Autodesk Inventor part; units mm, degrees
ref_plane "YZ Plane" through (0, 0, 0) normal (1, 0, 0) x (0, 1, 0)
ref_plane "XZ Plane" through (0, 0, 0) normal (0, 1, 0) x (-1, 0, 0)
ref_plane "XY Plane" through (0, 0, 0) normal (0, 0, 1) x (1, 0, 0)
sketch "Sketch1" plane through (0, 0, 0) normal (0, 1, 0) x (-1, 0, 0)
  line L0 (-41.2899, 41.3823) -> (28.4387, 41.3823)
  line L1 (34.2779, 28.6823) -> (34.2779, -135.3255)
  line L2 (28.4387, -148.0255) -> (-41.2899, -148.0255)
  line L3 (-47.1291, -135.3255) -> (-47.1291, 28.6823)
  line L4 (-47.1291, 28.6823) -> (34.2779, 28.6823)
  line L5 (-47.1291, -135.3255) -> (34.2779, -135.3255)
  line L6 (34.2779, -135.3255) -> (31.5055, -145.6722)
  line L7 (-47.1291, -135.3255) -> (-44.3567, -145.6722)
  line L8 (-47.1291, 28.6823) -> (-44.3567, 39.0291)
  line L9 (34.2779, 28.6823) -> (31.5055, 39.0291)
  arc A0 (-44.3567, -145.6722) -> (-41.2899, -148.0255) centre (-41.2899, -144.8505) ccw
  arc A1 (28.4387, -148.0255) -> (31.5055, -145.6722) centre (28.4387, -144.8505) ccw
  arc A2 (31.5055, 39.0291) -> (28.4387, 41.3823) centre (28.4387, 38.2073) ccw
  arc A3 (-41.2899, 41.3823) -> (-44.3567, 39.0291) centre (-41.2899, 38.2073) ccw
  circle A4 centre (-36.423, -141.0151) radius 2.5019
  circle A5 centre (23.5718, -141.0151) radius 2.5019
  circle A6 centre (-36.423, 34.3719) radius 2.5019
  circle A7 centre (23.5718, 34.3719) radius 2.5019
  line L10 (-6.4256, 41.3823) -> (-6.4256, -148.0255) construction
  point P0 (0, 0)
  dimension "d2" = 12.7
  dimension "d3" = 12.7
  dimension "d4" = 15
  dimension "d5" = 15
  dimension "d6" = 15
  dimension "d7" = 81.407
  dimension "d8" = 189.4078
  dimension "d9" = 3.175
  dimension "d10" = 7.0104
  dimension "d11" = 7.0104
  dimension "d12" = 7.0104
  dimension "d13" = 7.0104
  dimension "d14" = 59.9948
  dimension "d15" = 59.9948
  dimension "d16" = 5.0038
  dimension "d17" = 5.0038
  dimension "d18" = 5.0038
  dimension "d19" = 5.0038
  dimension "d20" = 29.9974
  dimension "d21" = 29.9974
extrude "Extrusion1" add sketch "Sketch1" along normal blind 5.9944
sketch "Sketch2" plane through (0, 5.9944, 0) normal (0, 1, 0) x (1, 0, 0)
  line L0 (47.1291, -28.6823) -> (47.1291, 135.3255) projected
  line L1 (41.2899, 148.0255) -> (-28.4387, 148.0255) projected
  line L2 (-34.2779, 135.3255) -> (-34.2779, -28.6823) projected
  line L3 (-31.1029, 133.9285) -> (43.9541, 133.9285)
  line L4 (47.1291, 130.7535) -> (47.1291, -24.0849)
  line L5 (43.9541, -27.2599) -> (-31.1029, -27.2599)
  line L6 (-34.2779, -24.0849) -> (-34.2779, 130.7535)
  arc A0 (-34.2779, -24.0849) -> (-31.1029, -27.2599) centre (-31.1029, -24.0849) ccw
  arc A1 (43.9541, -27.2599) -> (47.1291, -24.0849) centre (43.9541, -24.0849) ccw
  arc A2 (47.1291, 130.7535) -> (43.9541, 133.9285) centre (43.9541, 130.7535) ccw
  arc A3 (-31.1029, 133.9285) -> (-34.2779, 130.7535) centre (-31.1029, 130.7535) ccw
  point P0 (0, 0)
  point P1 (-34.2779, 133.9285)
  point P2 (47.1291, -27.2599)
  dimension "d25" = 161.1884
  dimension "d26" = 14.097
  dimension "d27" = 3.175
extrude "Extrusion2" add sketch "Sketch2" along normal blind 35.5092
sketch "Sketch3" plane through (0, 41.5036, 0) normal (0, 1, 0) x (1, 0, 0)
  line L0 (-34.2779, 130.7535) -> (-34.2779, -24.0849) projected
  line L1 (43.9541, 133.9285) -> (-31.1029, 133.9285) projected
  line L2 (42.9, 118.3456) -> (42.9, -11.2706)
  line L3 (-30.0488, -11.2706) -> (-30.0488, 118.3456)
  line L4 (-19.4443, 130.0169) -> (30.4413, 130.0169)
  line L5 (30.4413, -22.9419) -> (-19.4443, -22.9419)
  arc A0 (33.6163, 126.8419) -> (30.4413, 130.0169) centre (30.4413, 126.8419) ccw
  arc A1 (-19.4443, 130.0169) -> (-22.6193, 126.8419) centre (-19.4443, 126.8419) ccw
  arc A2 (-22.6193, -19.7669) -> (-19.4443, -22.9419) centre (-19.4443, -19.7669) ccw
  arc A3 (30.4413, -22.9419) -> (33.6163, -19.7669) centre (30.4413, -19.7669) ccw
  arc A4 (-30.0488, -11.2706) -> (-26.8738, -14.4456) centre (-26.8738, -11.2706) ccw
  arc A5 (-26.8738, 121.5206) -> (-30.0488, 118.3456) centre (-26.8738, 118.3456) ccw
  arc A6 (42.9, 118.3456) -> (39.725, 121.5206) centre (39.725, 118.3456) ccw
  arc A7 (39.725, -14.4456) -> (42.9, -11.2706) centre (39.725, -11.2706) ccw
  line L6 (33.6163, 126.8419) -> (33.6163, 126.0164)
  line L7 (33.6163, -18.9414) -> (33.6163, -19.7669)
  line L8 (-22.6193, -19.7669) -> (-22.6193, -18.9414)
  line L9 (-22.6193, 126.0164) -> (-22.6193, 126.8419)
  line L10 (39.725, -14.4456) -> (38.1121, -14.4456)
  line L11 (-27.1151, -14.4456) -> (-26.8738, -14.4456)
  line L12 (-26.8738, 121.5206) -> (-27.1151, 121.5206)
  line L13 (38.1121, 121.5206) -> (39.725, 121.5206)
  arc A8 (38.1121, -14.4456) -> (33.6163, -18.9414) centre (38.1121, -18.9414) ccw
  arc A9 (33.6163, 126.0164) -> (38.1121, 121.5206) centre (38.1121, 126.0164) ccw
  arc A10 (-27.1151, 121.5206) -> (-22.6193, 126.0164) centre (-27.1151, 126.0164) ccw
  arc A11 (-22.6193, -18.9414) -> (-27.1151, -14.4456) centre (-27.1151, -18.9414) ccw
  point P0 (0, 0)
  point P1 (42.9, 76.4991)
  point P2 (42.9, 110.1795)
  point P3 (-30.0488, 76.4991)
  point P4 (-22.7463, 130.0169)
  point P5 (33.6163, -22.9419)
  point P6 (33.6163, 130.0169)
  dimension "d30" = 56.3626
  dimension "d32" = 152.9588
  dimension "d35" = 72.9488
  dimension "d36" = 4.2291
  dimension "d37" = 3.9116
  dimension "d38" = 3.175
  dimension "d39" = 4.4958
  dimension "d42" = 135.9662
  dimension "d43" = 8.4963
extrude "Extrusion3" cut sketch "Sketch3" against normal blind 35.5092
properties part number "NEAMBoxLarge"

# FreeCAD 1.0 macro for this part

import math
import FreeCAD as App
import Part
import Sketcher
Q = App.Units.Quantity

doc = App.newDocument("Part")
body = doc.addObject("PartDesign::Body", "Body")

# Sketch on XZ plane
sketch1 = body.newObject("Sketcher::SketchObject", "Sketch")
sketch1.AttachmentSupport = (doc.getObject("XZ_Plane"), [""])
sketch1.MapMode = "FlatFace"
sketch1.addGeometry([
    Part.LineSegment(App.Vector(-28.4387, 41.3823, 0), App.Vector(41.2899, 41.3823, 0)),  # 0
    Part.ArcOfCircle(Part.Circle(App.Vector(41.2899, 38.2073, 0), App.Vector(0, 0, 1), 3.175), math.radians(15.000931), math.radians(90)),  # 1
    Part.LineSegment(App.Vector(44.3567, 39.0291, 0), App.Vector(47.1291, 28.6823, 0)),  # 2
    Part.LineSegment(App.Vector(47.1291, 28.6823, 0), App.Vector(47.1291, -135.3255, 0)),  # 3
    Part.LineSegment(App.Vector(47.1291, -135.3255, 0), App.Vector(44.3567, -145.6722, 0)),  # 4
    Part.ArcOfCircle(Part.Circle(App.Vector(41.2899, -144.8505, 0), App.Vector(0, 0, 1), 3.174973), math.radians(-90), math.radians(-14.999188)),  # 5
    Part.LineSegment(App.Vector(41.2899, -148.0255, 0), App.Vector(-28.4387, -148.0255, 0)),  # 6
    Part.ArcOfCircle(Part.Circle(App.Vector(-28.4387, -144.8505, 0), App.Vector(0, 0, 1), 3.175), math.radians(-165.000812), math.radians(-90)),  # 7
    Part.LineSegment(App.Vector(-31.5055, -145.6722, 0), App.Vector(-34.2779, -135.3255, 0)),  # 8
    Part.LineSegment(App.Vector(-34.2779, -135.3255, 0), App.Vector(-34.2779, 28.6823, 0)),  # 9
    Part.LineSegment(App.Vector(-34.2779, 28.6823, 0), App.Vector(-31.5055, 39.0291, 0)),  # 10
    Part.ArcOfCircle(Part.Circle(App.Vector(-28.4387, 38.2073, 0), App.Vector(0, 0, 1), 3.174999), math.radians(90), math.radians(164.999069)),  # 11
    Part.Circle(App.Vector(36.423, 34.3719, 0), App.Vector(0, 0, 1), 2.5019),  # 12
    Part.Circle(App.Vector(-23.5718, 34.3719, 0), App.Vector(0, 0, 1), 2.5019),  # 13
    Part.Circle(App.Vector(-23.5718, -141.0151, 0), App.Vector(0, 0, 1), 2.5019),  # 14
    Part.Circle(App.Vector(36.423, -141.0151, 0), App.Vector(0, 0, 1), 2.5019),  # 15
], False)
sketch1.addConstraint([
    Sketcher.Constraint("Tangent", 0, 2, 1, 2),
    Sketcher.Constraint("Tangent", 1, 1, 2, 1),
    Sketcher.Constraint("Coincident", 2, 2, 3, 1),
    Sketcher.Constraint("Coincident", 3, 2, 4, 1),
    Sketcher.Constraint("Tangent", 4, 2, 5, 2),
    Sketcher.Constraint("Tangent", 5, 1, 6, 1),
    Sketcher.Constraint("Tangent", 6, 2, 7, 2),
    Sketcher.Constraint("Tangent", 7, 1, 8, 1),
    Sketcher.Constraint("Coincident", 8, 2, 9, 1),
    Sketcher.Constraint("Coincident", 9, 2, 10, 1),
    Sketcher.Constraint("Tangent", 10, 2, 11, 2),
    Sketcher.Constraint("Tangent", 11, 1, 0, 1),
    Sketcher.Constraint("Horizontal", 0),
    Sketcher.Constraint("Vertical", 3),
    Sketcher.Constraint("Horizontal", 6),
    Sketcher.Constraint("Vertical", 9),
    Sketcher.Constraint("Equal", 1, 5),
    Sketcher.Constraint("Equal", 5, 7),
    Sketcher.Constraint("Equal", 7, 11),
    Sketcher.Constraint("Equal", 12, 13),
    Sketcher.Constraint("Equal", 13, 14),
    Sketcher.Constraint("Equal", 14, 15),
    Sketcher.Constraint("Parallel", 2, 8),
    Sketcher.Constraint("Parallel", 4, 10),
    Sketcher.Constraint("Horizontal", 12, 3, 13, 3),
    Sketcher.Constraint("Horizontal", 14, 3, 15, 3),
    Sketcher.Constraint("Horizontal", 4, 2, 7, 1),
    Sketcher.Constraint("Horizontal", 3, 2, 8, 2),
    Sketcher.Constraint("Horizontal", 2, 2, 9, 2),
    Sketcher.Constraint("Vertical", 1, 3, 5, 3),
    Sketcher.Constraint("Vertical", 13, 3, 14, 3),
    Sketcher.Constraint("Vertical", 12, 3, 15, 3),
    Sketcher.Constraint("Diameter", 12, Q("0.197 in")),
    Sketcher.Constraint("Radius", 1, Q("0.125 in")),
    Sketcher.Constraint("DistanceY", 2, 2, 0, 2, Q("0.5 in")),
    Sketcher.Constraint("Angle", 2, Q("-75 deg")),
    Sketcher.Constraint("DistanceX", 13, 3, 12, 3, Q("2.362 in")),
    Sketcher.Constraint("DistanceY", 12, 3, 0, 2, Q("0.276 in")),
    Sketcher.Constraint("DistanceY", 5, 1, 15, 3, Q("0.276 in")),
    Sketcher.Constraint("DistanceY", 3, 2, 3, 1, Q("6.457 in")),
    Sketcher.Constraint("DistanceX", 0, 1, 0, 2, 69.7286),
    Sketcher.Constraint("DistanceX", 12, 3, 1, 3, Q("0.1916 in")),
    Sketcher.Constraint("DistanceX", -1, 1, 1, 3, Q("1.6255906 in")),
    Sketcher.Constraint("DistanceY", -1, 1, 1, 3, 38.2073),
])
pad1 = body.newObject("PartDesign::Pad", "Pad")
pad1.Profile = sketch1
pad1.Length = Q("0.236 in")
pad1.Reversed = True

# Sketch on XZ plane
sketch2 = body.newObject("Sketcher::SketchObject", "Sketch001")
sketch2.AttachmentSupport = (doc.getObject("XZ_Plane"), [""])
sketch2.MapMode = "FlatFace"
sketch2.AttachmentOffset = App.Placement(App.Vector(0, 0, -0.236 * 25.4), App.Rotation())
sketch2.addGeometry([
    Part.ArcOfCircle(Part.Circle(App.Vector(43.9541, 24.0849, 0), App.Vector(0, 0, 1), 3.175), math.radians(0), math.radians(90)),  # 0
    Part.LineSegment(App.Vector(47.1291, 24.0849, 0), App.Vector(47.1291, -130.7535, 0)),  # 1
    Part.ArcOfCircle(Part.Circle(App.Vector(43.9541, -130.7535, 0), App.Vector(0, 0, 1), 3.175), math.radians(-90), math.radians(0)),  # 2
    Part.LineSegment(App.Vector(43.9541, -133.9285, 0), App.Vector(-31.1029, -133.9285, 0)),  # 3
    Part.ArcOfCircle(Part.Circle(App.Vector(-31.1029, -130.7535, 0), App.Vector(0, 0, 1), 3.175), math.radians(180), math.radians(270)),  # 4
    Part.LineSegment(App.Vector(-34.2779, -130.7535, 0), App.Vector(-34.2779, 24.0849, 0)),  # 5
    Part.ArcOfCircle(Part.Circle(App.Vector(-31.1029, 24.0849, 0), App.Vector(0, 0, 1), 3.175), math.radians(90), math.radians(180)),  # 6
    Part.LineSegment(App.Vector(-31.1029, 27.2599, 0), App.Vector(43.9541, 27.2599, 0)),  # 7
], False)
sketch2.addConstraint([
    Sketcher.Constraint("Tangent", 0, 1, 1, 1),
    Sketcher.Constraint("Tangent", 1, 2, 2, 2),
    Sketcher.Constraint("Tangent", 2, 1, 3, 1),
    Sketcher.Constraint("Tangent", 3, 2, 4, 2),
    Sketcher.Constraint("Tangent", 4, 1, 5, 1),
    Sketcher.Constraint("Tangent", 5, 2, 6, 2),
    Sketcher.Constraint("Tangent", 6, 1, 7, 1),
    Sketcher.Constraint("Tangent", 7, 2, 0, 2),
    Sketcher.Constraint("Vertical", 1),
    Sketcher.Constraint("Horizontal", 3),
    Sketcher.Constraint("Vertical", 5),
    Sketcher.Constraint("Horizontal", 7),
    Sketcher.Constraint("Equal", 0, 2),
    Sketcher.Constraint("Equal", 2, 4),
    Sketcher.Constraint("Equal", 4, 6),
    Sketcher.Constraint("Radius", 0, Q("0.125 in")),
    Sketcher.Constraint("DistanceX", 3, 2, 3, 1, Q("2.955 in")),
    Sketcher.Constraint("DistanceY", 1, 2, 1, 1, Q("6.096 in")),
    Sketcher.Constraint("DistanceX", -1, 1, 0, 3, 43.954),
    Sketcher.Constraint("DistanceY", -1, 1, 0, 3, 24.085),
])
pad2 = body.newObject("PartDesign::Pad", "Pad001")
pad2.Profile = sketch2
pad2.Length = Q("1.398 in")
pad2.Reversed = True

# Sketch on XZ plane
sketch3 = body.newObject("Sketcher::SketchObject", "Sketch002")
sketch3.AttachmentSupport = (doc.getObject("XZ_Plane"), [""])
sketch3.MapMode = "FlatFace"
sketch3.AttachmentOffset = App.Placement(App.Vector(0, 0, -1.634 * 25.4), App.Rotation())
sketch3.addGeometry([
    Part.LineSegment(App.Vector(42.9, 11.2706, 0), App.Vector(42.9, -118.3456, 0)),  # 0
    Part.ArcOfCircle(Part.Circle(App.Vector(39.725, -118.3456, 0), App.Vector(0, 0, 1), 3.175), math.radians(-90), math.radians(0)),  # 1
    Part.LineSegment(App.Vector(39.725, -121.5206, 0), App.Vector(38.1121, -121.5206, 0)),  # 2
    Part.ArcOfCircle(Part.Circle(App.Vector(38.1121, -126.0164, 0), App.Vector(0, 0, 1), 4.4958), math.radians(90), math.radians(180)),  # 3
    Part.LineSegment(App.Vector(33.6163, -126.0164, 0), App.Vector(33.6163, -126.8419, 0)),  # 4
    Part.ArcOfCircle(Part.Circle(App.Vector(30.4413, -126.8419, 0), App.Vector(0, 0, 1), 3.175), math.radians(-90), math.radians(0)),  # 5
    Part.LineSegment(App.Vector(30.4413, -130.0169, 0), App.Vector(-19.4443, -130.0169, 0)),  # 6
    Part.ArcOfCircle(Part.Circle(App.Vector(-19.4443, -126.8419, 0), App.Vector(0, 0, 1), 3.175), math.radians(180), math.radians(270)),  # 7
    Part.LineSegment(App.Vector(-22.6193, -126.8419, 0), App.Vector(-22.6193, -126.0164, 0)),  # 8
    Part.ArcOfCircle(Part.Circle(App.Vector(-27.1151, -126.0164, 0), App.Vector(0, 0, 1), 4.4958), math.radians(0), math.radians(90)),  # 9
    Part.LineSegment(App.Vector(-27.1151, -121.5206, 0), App.Vector(-26.8738, -121.5206, 0)),  # 10
    Part.ArcOfCircle(Part.Circle(App.Vector(-26.8738, -118.3456, 0), App.Vector(0, 0, 1), 3.175), math.radians(180), math.radians(270)),  # 11
    Part.LineSegment(App.Vector(-30.0488, -118.3456, 0), App.Vector(-30.0488, 11.2706, 0)),  # 12
    Part.ArcOfCircle(Part.Circle(App.Vector(-26.8738, 11.2706, 0), App.Vector(0, 0, 1), 3.175), math.radians(90), math.radians(180)),  # 13
    Part.LineSegment(App.Vector(-26.8738, 14.4456, 0), App.Vector(-27.1151, 14.4456, 0)),  # 14
    Part.ArcOfCircle(Part.Circle(App.Vector(-27.1151, 18.9414, 0), App.Vector(0, 0, 1), 4.4958), math.radians(-90), math.radians(0)),  # 15
    Part.LineSegment(App.Vector(-22.6193, 18.9414, 0), App.Vector(-22.6193, 19.7669, 0)),  # 16
    Part.ArcOfCircle(Part.Circle(App.Vector(-19.4443, 19.7669, 0), App.Vector(0, 0, 1), 3.175), math.radians(90), math.radians(180)),  # 17
    Part.LineSegment(App.Vector(-19.4443, 22.9419, 0), App.Vector(30.4413, 22.9419, 0)),  # 18
    Part.ArcOfCircle(Part.Circle(App.Vector(30.4413, 19.7669, 0), App.Vector(0, 0, 1), 3.175), math.radians(0), math.radians(90)),  # 19
    Part.LineSegment(App.Vector(33.6163, 19.7669, 0), App.Vector(33.6163, 18.9414, 0)),  # 20
    Part.ArcOfCircle(Part.Circle(App.Vector(38.1121, 18.9414, 0), App.Vector(0, 0, 1), 4.4958), math.radians(180), math.radians(270)),  # 21
    Part.LineSegment(App.Vector(38.1121, 14.4456, 0), App.Vector(39.725, 14.4456, 0)),  # 22
    Part.ArcOfCircle(Part.Circle(App.Vector(39.725, 11.2706, 0), App.Vector(0, 0, 1), 3.175), math.radians(0), math.radians(90)),  # 23
], False)
sketch3.addConstraint([
    Sketcher.Constraint("Tangent", 0, 2, 1, 2),
    Sketcher.Constraint("Tangent", 1, 1, 2, 1),
    Sketcher.Constraint("Tangent", 2, 2, 3, 1),
    Sketcher.Constraint("Tangent", 3, 2, 4, 1),
    Sketcher.Constraint("Tangent", 4, 2, 5, 2),
    Sketcher.Constraint("Tangent", 5, 1, 6, 1),
    Sketcher.Constraint("Tangent", 6, 2, 7, 2),
    Sketcher.Constraint("Tangent", 7, 1, 8, 1),
    Sketcher.Constraint("Tangent", 8, 2, 9, 1),
    Sketcher.Constraint("Tangent", 9, 2, 10, 1),
    Sketcher.Constraint("Tangent", 10, 2, 11, 2),
    Sketcher.Constraint("Tangent", 11, 1, 12, 1),
    Sketcher.Constraint("Tangent", 12, 2, 13, 2),
    Sketcher.Constraint("Tangent", 13, 1, 14, 1),
    Sketcher.Constraint("Tangent", 14, 2, 15, 1),
    Sketcher.Constraint("Tangent", 15, 2, 16, 1),
    Sketcher.Constraint("Tangent", 16, 2, 17, 2),
    Sketcher.Constraint("Tangent", 17, 1, 18, 1),
    Sketcher.Constraint("Tangent", 18, 2, 19, 2),
    Sketcher.Constraint("Tangent", 19, 1, 20, 1),
    Sketcher.Constraint("Tangent", 20, 2, 21, 1),
    Sketcher.Constraint("Tangent", 21, 2, 22, 1),
    Sketcher.Constraint("Tangent", 22, 2, 23, 2),
    Sketcher.Constraint("Tangent", 23, 1, 0, 1),
    Sketcher.Constraint("Vertical", 0),
    Sketcher.Constraint("Horizontal", 2),
    Sketcher.Constraint("Vertical", 4),
    Sketcher.Constraint("Horizontal", 6),
    Sketcher.Constraint("Vertical", 8),
    Sketcher.Constraint("Horizontal", 10),
    Sketcher.Constraint("Vertical", 12),
    Sketcher.Constraint("Horizontal", 14),
    Sketcher.Constraint("Vertical", 16),
    Sketcher.Constraint("Horizontal", 18),
    Sketcher.Constraint("Vertical", 20),
    Sketcher.Constraint("Horizontal", 22),
    Sketcher.Constraint("Equal", 1, 5),
    Sketcher.Constraint("Equal", 5, 7),
    Sketcher.Constraint("Equal", 3, 9),
    Sketcher.Constraint("Equal", 7, 11),
    Sketcher.Constraint("Equal", 11, 13),
    Sketcher.Constraint("Equal", 9, 15),
    Sketcher.Constraint("Equal", 13, 17),
    Sketcher.Constraint("Equal", 17, 19),
    Sketcher.Constraint("Equal", 15, 21),
    Sketcher.Constraint("Equal", 19, 23),
    Sketcher.Constraint("Horizontal", 3, 3, 9, 3),
    Sketcher.Constraint("Horizontal", 15, 3, 21, 3),
    Sketcher.Constraint("Vertical", 9, 3, 15, 3),
    Sketcher.Constraint("Vertical", 5, 3, 19, 3),
    Sketcher.Constraint("Equal", 8, 16),
    Sketcher.Constraint("Radius", 1, Q("0.125 in")),
    Sketcher.Constraint("Radius", 3, Q("0.177 in")),
    Sketcher.Constraint("DistanceY", 5, 3, 1, 3, Q("0.3345 in")),
    Sketcher.Constraint("DistanceX", 6, 2, 6, 1, Q("1.964 in")),
    Sketcher.Constraint("DistanceY", 0, 2, 0, 1, Q("5.103 in")),
    Sketcher.Constraint("DistanceX", 2, 2, 2, 1, Q("0.0635 in")),
    Sketcher.Constraint("DistanceX", 10, 1, 10, 2, Q("0.0095 in")),
    Sketcher.Constraint("DistanceX", -1, 1, 1, 3, 39.725),
    Sketcher.Constraint("DistanceY", 1, 3, -1, 1, 118.3456),
])
pocket1 = body.newObject("PartDesign::Pocket", "Pocket")
pocket1.Profile = sketch3
pocket1.Length = Q("1.398 in")
pocket1.Reversed = True

doc.recompute()
